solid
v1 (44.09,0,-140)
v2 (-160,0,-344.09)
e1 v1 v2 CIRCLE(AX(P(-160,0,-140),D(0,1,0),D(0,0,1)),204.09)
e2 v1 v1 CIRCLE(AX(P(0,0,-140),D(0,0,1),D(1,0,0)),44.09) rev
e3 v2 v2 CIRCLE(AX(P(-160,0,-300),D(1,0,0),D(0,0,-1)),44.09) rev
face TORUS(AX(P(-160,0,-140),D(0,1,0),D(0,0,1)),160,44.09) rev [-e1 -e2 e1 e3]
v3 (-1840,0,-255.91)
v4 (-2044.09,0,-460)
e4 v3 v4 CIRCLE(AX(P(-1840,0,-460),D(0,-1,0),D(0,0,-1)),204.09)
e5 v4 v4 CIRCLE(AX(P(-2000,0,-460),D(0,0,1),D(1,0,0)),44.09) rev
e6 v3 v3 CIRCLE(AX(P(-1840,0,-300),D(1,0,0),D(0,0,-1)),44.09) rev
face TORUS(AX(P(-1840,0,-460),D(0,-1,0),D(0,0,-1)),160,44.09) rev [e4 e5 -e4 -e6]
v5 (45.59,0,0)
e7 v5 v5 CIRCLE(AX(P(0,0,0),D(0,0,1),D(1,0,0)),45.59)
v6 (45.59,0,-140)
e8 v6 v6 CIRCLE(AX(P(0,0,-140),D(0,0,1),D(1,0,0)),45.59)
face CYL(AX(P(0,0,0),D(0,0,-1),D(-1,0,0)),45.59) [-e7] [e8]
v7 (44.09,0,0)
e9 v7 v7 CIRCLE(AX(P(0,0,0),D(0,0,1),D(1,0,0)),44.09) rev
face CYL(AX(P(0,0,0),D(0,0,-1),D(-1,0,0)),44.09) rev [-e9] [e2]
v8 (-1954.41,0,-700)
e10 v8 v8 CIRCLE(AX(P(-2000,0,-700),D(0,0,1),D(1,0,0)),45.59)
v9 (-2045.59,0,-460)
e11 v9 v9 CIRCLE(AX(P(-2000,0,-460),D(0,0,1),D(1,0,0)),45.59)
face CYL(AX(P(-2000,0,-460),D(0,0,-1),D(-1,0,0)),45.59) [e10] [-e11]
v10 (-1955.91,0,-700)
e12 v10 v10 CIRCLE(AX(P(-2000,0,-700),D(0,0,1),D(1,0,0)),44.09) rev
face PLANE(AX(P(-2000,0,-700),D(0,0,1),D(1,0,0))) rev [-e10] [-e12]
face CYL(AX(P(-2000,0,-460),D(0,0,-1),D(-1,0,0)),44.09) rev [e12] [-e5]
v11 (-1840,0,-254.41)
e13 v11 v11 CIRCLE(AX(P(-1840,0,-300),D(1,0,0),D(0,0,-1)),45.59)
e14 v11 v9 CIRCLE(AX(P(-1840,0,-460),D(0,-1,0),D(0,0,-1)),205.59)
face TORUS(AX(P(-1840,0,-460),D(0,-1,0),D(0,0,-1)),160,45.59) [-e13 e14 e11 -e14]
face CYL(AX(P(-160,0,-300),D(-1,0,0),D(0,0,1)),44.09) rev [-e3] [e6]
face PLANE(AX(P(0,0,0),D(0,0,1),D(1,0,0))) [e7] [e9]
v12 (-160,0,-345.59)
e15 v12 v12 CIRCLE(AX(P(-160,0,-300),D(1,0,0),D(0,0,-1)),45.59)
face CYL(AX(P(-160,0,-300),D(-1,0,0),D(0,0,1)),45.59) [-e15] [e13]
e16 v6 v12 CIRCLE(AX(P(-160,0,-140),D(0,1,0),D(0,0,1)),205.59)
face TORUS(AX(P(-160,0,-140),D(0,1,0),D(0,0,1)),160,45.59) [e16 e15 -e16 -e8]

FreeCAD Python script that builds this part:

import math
import FreeCAD as App
import Part
import Sketcher
from FreeCAD import Vector
Q = App.Units.Quantity

doc = App.newDocument("Part")
body = doc.addObject("PartDesign::Body", "Body")

# Sketch on XY plane
sketch1 = doc.addObject("Sketcher::SketchObject", "Sketch")
body.addObject(sketch1)
sketch1.AttachmentSupport = (doc.XY_Plane, [""])
sketch1.MapMode = "FlatFace"
sketch1.addGeometry([
    Part.Circle(Vector(0, 0, 0), Vector(0, 0, 1), 46),
    Part.Circle(Vector(0, 0, 0), Vector(0, 0, 1), 44),
], False)
sketch1.addConstraint([
    Sketcher.Constraint("Coincident", 0, 3, -1, 1),
    Sketcher.Constraint("Coincident", 1, 3, -1, 1),
    Sketcher.Constraint("Diameter", 0, Q("91.18 mm")),
    Sketcher.Constraint("Diameter", 1, Q("88.18 mm")),
])

# Sketch on XZ plane
sketch2 = doc.addObject("Sketcher::SketchObject", "Sketch001")
body.addObject(sketch2)
sketch2.AttachmentSupport = (doc.XZ_Plane, [""])
sketch2.MapMode = "FlatFace"
sketch2.addGeometry([
    Part.LineSegment(Vector(0, 0, 0), Vector(0, -140, 0)),  # 0
    Part.ArcOfCircle(Part.Circle(Vector(-160, -140, 0), Vector(0, 0, 1), 160), math.radians(-90), math.radians(0)),  # 1
    Part.LineSegment(Vector(-160, -300, 0), Vector(-1840, -300, 0)),  # 2
    Part.ArcOfCircle(Part.Circle(Vector(-1840, -460, 0), Vector(0, 0, 1), 160), math.radians(90), math.radians(180)),  # 3
    Part.LineSegment(Vector(-2000, -460, 0), Vector(-2000, -700, 0)),  # 4
], False)
sketch2.addConstraint([
    Sketcher.Constraint("Tangent", 0, 2, 1, 2),
    Sketcher.Constraint("Tangent", 1, 1, 2, 1),
    Sketcher.Constraint("Tangent", 2, 2, 3, 1),
    Sketcher.Constraint("Tangent", 3, 2, 4, 1),
    Sketcher.Constraint("Vertical", 0),
    Sketcher.Constraint("Horizontal", 2),
    Sketcher.Constraint("Vertical", 4),
    Sketcher.Constraint("Coincident", 0, 1, -1, 1),
    Sketcher.Constraint("Equal", 1, 3),
    Sketcher.Constraint("Radius", 1, Q("160 mm")),
    Sketcher.Constraint("DistanceX", 2, 2, 2, 1, Q("1680 mm")),
    Sketcher.Constraint("DistanceY", 0, 2, 0, 1, Q("140 mm")),
    Sketcher.Constraint("DistanceY", 4, 2, 4, 1, Q("240 mm")),
])
doc.recompute()

additivepipe = doc.addObject("PartDesign::AdditivePipe", "AdditivePipe")
body.addObject(additivepipe)
additivepipe.Profile = sketch1
additivepipe.Spine = (sketch2, ["Edge1", "Edge2", "Edge3", "Edge4", "Edge5"])

doc.recompute()
